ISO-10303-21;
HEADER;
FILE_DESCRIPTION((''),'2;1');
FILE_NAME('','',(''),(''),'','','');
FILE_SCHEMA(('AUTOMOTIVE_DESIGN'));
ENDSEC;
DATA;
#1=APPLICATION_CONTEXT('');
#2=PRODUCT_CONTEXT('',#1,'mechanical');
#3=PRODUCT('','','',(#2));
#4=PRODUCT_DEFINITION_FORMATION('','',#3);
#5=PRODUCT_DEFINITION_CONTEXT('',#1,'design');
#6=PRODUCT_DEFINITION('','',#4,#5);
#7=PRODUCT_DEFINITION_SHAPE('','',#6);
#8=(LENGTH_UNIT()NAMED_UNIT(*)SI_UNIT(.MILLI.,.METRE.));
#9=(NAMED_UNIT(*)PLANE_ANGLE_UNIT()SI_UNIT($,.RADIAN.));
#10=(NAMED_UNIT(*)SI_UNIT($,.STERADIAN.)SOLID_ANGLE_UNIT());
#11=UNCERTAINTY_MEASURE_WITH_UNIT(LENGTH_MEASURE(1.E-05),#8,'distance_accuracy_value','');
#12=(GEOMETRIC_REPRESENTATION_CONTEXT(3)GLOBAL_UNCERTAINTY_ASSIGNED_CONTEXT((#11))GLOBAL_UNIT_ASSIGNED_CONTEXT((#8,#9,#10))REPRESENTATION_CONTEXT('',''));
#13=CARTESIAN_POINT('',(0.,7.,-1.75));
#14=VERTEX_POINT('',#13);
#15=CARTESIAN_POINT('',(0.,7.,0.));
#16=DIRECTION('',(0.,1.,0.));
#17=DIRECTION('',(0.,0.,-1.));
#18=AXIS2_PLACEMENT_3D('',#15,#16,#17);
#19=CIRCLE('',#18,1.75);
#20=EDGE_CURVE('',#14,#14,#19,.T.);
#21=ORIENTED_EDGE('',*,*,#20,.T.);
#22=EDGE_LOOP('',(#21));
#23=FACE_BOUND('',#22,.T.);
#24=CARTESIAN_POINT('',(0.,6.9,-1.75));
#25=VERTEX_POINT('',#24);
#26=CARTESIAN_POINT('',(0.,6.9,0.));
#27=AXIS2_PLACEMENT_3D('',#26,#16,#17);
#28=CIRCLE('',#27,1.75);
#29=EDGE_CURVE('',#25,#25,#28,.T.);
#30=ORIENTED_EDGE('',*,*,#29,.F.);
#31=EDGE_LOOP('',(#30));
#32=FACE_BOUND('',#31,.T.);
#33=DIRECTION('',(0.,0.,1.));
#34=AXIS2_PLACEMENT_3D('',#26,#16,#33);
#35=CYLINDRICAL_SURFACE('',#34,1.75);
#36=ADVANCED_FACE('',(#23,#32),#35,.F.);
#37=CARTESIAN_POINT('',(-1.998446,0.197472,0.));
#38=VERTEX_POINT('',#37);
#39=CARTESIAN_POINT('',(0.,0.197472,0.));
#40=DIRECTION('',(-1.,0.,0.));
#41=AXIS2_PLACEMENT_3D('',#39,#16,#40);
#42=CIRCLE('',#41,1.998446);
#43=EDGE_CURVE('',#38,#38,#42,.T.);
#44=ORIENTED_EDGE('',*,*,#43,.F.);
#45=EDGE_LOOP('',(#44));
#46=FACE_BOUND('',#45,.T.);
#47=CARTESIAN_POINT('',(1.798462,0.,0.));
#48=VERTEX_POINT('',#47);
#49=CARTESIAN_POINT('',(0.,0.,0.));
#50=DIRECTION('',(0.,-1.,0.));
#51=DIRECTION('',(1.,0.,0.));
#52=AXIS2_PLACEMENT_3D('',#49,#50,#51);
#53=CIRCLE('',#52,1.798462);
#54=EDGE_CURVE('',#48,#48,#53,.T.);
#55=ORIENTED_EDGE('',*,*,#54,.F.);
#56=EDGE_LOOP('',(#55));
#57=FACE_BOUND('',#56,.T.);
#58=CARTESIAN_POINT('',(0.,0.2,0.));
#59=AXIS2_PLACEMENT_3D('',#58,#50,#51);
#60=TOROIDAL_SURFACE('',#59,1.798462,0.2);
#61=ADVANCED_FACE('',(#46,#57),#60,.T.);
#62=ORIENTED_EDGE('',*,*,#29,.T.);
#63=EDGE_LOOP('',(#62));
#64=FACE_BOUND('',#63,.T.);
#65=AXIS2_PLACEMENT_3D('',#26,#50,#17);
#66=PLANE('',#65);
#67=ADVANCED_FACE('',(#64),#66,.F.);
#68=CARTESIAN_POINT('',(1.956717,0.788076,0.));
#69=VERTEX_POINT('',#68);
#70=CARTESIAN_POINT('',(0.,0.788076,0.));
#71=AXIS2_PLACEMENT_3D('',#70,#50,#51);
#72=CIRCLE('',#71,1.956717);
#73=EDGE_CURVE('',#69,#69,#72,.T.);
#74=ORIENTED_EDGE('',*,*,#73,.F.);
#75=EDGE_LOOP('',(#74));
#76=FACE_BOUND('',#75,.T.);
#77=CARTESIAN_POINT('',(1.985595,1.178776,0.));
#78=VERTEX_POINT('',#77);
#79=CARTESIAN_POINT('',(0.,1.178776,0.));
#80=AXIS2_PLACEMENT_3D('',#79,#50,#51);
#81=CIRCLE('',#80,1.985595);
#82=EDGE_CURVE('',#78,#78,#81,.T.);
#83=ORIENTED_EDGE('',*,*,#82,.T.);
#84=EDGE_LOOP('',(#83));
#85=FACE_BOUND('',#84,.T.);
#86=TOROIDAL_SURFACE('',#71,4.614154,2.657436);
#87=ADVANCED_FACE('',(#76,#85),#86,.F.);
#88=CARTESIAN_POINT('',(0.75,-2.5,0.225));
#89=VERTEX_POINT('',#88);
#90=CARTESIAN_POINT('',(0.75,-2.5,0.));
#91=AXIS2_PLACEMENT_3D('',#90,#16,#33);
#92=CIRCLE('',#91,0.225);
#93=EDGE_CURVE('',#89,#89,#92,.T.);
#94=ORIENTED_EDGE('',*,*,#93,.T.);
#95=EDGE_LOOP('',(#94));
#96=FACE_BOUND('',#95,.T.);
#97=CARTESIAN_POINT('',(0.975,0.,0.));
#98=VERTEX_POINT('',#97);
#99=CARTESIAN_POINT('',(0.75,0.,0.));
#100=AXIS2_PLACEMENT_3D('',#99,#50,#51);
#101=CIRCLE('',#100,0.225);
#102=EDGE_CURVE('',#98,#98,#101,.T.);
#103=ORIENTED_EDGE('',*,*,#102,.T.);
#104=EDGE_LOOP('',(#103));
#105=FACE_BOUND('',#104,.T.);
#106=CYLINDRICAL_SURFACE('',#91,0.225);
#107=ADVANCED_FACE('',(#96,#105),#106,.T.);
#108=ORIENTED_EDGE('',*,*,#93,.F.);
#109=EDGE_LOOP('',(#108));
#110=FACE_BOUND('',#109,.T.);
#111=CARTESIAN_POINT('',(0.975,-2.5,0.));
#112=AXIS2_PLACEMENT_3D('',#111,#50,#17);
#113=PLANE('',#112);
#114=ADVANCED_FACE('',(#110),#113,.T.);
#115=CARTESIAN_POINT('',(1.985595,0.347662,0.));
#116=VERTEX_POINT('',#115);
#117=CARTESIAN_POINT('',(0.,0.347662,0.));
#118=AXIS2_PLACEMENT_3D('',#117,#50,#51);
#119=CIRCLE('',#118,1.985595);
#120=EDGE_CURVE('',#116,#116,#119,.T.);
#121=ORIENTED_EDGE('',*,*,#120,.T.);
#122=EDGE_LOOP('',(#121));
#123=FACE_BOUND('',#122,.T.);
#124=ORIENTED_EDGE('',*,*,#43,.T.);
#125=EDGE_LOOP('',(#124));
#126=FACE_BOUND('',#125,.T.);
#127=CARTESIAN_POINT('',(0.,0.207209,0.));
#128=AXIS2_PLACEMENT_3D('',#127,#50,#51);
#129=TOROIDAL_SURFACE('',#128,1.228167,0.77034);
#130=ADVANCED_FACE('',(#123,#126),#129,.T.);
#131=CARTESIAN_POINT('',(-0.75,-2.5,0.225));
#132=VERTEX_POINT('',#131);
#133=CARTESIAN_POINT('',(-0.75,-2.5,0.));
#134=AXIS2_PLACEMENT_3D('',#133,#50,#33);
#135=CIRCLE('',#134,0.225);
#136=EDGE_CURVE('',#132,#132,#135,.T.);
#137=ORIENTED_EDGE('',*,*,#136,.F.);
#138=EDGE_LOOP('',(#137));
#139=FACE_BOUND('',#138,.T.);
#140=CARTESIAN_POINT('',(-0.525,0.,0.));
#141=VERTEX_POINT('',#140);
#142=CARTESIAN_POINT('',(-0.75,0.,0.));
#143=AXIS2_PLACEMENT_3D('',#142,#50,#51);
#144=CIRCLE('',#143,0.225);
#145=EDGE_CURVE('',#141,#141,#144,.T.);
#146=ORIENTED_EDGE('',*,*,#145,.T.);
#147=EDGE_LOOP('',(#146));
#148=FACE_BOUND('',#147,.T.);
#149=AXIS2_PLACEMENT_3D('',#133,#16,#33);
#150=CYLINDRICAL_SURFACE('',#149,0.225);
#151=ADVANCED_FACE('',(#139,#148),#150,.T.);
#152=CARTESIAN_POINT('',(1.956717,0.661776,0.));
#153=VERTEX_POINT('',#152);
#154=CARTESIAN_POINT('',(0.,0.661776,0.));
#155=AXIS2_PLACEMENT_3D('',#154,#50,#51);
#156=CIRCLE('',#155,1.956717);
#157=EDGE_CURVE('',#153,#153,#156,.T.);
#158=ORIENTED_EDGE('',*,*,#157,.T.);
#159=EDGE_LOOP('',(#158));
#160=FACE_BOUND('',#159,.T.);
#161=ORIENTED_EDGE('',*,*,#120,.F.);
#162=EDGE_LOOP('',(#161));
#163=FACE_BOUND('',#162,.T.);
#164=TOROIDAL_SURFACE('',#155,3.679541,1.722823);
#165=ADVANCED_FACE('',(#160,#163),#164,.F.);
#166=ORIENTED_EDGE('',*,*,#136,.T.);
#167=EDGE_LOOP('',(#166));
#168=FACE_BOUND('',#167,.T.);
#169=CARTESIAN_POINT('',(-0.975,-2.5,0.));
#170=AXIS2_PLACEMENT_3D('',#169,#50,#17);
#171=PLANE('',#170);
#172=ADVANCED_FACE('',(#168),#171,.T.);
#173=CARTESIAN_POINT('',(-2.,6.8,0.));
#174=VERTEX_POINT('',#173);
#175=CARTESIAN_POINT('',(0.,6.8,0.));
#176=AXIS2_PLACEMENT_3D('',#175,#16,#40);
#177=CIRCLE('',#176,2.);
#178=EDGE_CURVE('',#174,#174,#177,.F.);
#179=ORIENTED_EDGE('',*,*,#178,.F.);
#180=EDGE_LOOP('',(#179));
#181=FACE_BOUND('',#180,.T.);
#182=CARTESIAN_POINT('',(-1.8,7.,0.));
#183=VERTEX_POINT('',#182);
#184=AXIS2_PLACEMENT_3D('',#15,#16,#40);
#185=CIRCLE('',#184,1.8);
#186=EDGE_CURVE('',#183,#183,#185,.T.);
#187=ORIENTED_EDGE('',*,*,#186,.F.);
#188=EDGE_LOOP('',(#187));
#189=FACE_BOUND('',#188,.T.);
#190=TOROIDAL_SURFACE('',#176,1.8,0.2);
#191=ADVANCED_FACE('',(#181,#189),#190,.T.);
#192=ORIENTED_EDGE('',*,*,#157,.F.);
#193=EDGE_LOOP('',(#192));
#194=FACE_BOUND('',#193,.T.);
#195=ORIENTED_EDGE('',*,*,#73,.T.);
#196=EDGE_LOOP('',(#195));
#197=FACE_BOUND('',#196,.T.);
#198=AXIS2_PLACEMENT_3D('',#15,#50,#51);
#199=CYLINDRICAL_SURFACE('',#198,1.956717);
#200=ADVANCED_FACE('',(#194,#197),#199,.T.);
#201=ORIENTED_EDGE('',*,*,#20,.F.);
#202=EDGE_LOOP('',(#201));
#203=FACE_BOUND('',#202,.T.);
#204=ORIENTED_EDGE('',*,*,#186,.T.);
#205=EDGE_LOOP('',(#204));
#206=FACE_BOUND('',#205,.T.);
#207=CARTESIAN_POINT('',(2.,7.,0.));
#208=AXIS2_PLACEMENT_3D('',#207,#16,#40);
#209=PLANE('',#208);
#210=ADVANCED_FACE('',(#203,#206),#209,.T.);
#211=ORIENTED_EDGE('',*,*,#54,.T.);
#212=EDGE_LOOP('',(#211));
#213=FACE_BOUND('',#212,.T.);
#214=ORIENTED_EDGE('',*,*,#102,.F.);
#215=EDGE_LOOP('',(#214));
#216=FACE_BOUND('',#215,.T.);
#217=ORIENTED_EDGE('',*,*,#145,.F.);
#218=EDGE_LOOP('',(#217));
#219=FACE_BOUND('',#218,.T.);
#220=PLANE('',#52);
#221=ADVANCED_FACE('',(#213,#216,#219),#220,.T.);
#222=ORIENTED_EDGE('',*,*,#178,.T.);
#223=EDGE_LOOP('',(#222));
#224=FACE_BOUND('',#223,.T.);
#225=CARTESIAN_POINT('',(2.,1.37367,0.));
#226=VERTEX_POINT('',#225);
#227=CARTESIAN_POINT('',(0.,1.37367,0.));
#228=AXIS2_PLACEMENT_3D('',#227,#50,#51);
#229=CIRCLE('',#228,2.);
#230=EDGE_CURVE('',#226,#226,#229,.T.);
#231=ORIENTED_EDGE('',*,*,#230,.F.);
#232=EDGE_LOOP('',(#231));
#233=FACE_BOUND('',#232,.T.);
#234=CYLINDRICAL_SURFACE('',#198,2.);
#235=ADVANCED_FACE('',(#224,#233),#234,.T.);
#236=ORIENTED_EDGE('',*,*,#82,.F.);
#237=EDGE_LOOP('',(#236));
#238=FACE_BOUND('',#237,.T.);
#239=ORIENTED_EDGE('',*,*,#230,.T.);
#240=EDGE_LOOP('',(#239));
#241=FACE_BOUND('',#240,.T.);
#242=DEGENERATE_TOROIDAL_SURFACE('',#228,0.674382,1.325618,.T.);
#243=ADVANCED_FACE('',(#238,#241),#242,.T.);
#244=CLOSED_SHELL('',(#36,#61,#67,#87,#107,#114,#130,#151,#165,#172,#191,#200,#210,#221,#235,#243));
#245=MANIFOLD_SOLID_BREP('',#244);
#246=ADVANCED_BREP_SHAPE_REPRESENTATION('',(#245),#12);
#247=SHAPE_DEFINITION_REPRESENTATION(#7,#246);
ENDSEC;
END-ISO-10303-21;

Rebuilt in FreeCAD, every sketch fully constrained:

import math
import FreeCAD as App
import Part
import Sketcher


def edges_at(feature, points):
    """Names of the edges that pass closest to the given points."""
    edges = feature.Shape.Edges
    near = lambda p: min(range(len(edges)), key=lambda i: edges[i].distToShape(Part.Vertex(*p))[0])
    return sorted({f"Edge{near(p) + 1}" for p in points})

doc = App.newDocument("Part")
params = doc.addObject("Spreadsheet::Sheet", "Params")
for row, (alias, value) in enumerate([
    ("sketch1_width", "2 mm"),
    ("sketch1_height", "7 mm"),
    ("revolution_angle", "360 deg"),
    ("sketch2_diameter", "3.5 mm"),
    ("pocket1_length", "0.1 mm"),
    ("sketch3_height", "2.5 mm"),
    ("revolution2_angle", "360 deg"),
    ("fillet_radius", "0.2 mm"),
], start=1):
    params.set(f"A{row}", alias)
    params.set(f"B{row}", "=" + value)
    params.setAlias(f"B{row}", alias)

body = doc.addObject("PartDesign::Body", "Body")

# Sketch on XY plane
sketch1 = body.newObject("Sketcher::SketchObject", "Sketch")
sketch1.AttachmentSupport = (doc.getObject("XY_Plane"), [""])
sketch1.MapMode = "FlatFace"
sketch1.addGeometry(Part.LineSegment(App.Vector(2, 7, 0), App.Vector(0, 7, 0)), False)
sketch1.addGeometry(Part.LineSegment(App.Vector(0, 7, 0), App.Vector(0, 0, 0)), False)
sketch1.addGeometry(Part.LineSegment(App.Vector(0, 0, 0), App.Vector(1.97, 0, 0)), False)
sketch1.addGeometry(Part.ArcOfCircle(Part.Circle(App.Vector(1.23, 0.21, 0), App.Vector(0, 0, 1), 0.77), math.radians(-16), math.radians(11)), False)
sketch1.addGeometry(Part.ArcOfCircle(Part.Circle(App.Vector(3.68, 0.66, 0), App.Vector(0, 0, 1), 1.72), math.radians(180), math.radians(190.51)), False)
sketch1.addGeometry(Part.LineSegment(App.Vector(1.96, 0.66, 0), App.Vector(1.96, 0.79, 0)), False)
sketch1.addGeometry(Part.ArcOfCircle(Part.Circle(App.Vector(4.61, 0.79, 0), App.Vector(0, 0, 1), 2.66), math.radians(171.55), math.radians(180)), False)
sketch1.addGeometry(Part.ArcOfCircle(Part.Circle(App.Vector(0.67, 1.37, 0), App.Vector(0, 0, 1), 1.33), math.radians(-8.45), math.radians(0)), False)
sketch1.addGeometry(Part.LineSegment(App.Vector(2, 1.37, 0), App.Vector(2, 7, 0)), False)
sketch1.addConstraint(Sketcher.Constraint("Coincident", 0, 2, 1, 1))
sketch1.addConstraint(Sketcher.Constraint("Coincident", 1, 2, 2, 1))
sketch1.addConstraint(Sketcher.Constraint("Coincident", 2, 2, 3, 1))
sketch1.addConstraint(Sketcher.Constraint("Tangent", 3, 2, 4, 2))
sketch1.addConstraint(Sketcher.Constraint("Tangent", 4, 1, 5, 1))
sketch1.addConstraint(Sketcher.Constraint("Tangent", 5, 2, 6, 2))
sketch1.addConstraint(Sketcher.Constraint("Tangent", 6, 1, 7, 1))
sketch1.addConstraint(Sketcher.Constraint("Tangent", 7, 2, 8, 1))
sketch1.addConstraint(Sketcher.Constraint("Coincident", 8, 2, 0, 1))
sketch1.addConstraint(Sketcher.Constraint("Horizontal", 0))
sketch1.addConstraint(Sketcher.Constraint("Vertical", 1))
sketch1.addConstraint(Sketcher.Constraint("Horizontal", 2))
sketch1.addConstraint(Sketcher.Constraint("Vertical", 5))
sketch1.addConstraint(Sketcher.Constraint("Vertical", 8))
sketch1.addConstraint(Sketcher.Constraint("Coincident", 1, 2, -1, 1))
sketch1.addConstraint(Sketcher.Constraint("Vertical", 3, 2, 6, 1))
sketch1.addConstraint(Sketcher.Constraint("DistanceX", 0, 2, 0, 1, 2.0))
sketch1.addConstraint(Sketcher.Constraint("DistanceY", 1, 2, 1, 1, 7.0))
sketch1.addConstraint(Sketcher.Constraint("Radius", 3, 0.77034))
sketch1.addConstraint(Sketcher.Constraint("DistanceY", 5, 1, 5, 2, 0.1263))
sketch1.addConstraint(Sketcher.Constraint("Radius", 4, 1.722823))
sketch1.addConstraint(Sketcher.Constraint("Radius", 6, 2.657436))
sketch1.addConstraint(Sketcher.Constraint("Radius", 7, 1.325618))
sketch1.addConstraint(Sketcher.Constraint("DistanceY", 4, 1, 6, 1, 0.517))
sketch1.addConstraint(Sketcher.Constraint("DistanceY", 8, 1, 8, 2, 5.62633))
sketch1.setExpression("Constraints[16]", "Params.sketch1_width")
sketch1.setExpression("Constraints[17]", "Params.sketch1_height")
revolution = body.newObject("PartDesign::Revolution", "Revolution")
revolution.Profile = sketch1
revolution.ReferenceAxis = (sketch1, ["V_Axis"])
revolution.setExpression("Angle", "Params.revolution_angle")

# Sketch on XZ plane
sketch2 = body.newObject("Sketcher::SketchObject", "Sketch001")
sketch2.AttachmentSupport = (doc.getObject("XZ_Plane"), [""])
sketch2.MapMode = "FlatFace"
sketch2.AttachmentOffset = App.Placement(App.Vector(0, 0, -7), App.Rotation())
sketch2.addGeometry(Part.Circle(App.Vector(0, 0, 0), App.Vector(0, 0, 1), 1.8), False)
sketch2.addConstraint(Sketcher.Constraint("Coincident", 0, 3, -1, 1))
sketch2.addConstraint(Sketcher.Constraint("Diameter", 0, 3.5))
sketch2.setExpression("Constraints[1]", "Params.sketch2_diameter")
pocket1 = body.newObject("PartDesign::Pocket", "Pocket")
pocket1.Profile = sketch2
pocket1.setExpression("Length", "Params.pocket1_length")
pocket1.Reversed = True

# Sketch on XY plane
sketch3 = body.newObject("Sketcher::SketchObject", "Sketch002")
sketch3.AttachmentSupport = (doc.getObject("XY_Plane"), [""])
sketch3.MapMode = "FlatFace"
sketch3.addGeometry(Part.LineSegment(App.Vector(0.97, 0, 0), App.Vector(0.97, -2.5, 0)), False)
sketch3.addGeometry(Part.LineSegment(App.Vector(0.97, -2.5, 0), App.Vector(0.75, -2.5, 0)), False)
sketch3.addGeometry(Part.LineSegment(App.Vector(0.75, -2.5, 0), App.Vector(0.75, 0, 0)), False)
sketch3.addGeometry(Part.LineSegment(App.Vector(0.75, 0, 0), App.Vector(0.97, 0, 0)), False)
sketch3.addGeometry(Part.LineSegment(App.Vector(0.75, -2.5, 0), App.Vector(0.75, 0, 0)), True)  # axis
sketch3.addConstraint(Sketcher.Constraint("Coincident", 0, 2, 1, 1))
sketch3.addConstraint(Sketcher.Constraint("Coincident", 1, 2, 2, 1))
sketch3.addConstraint(Sketcher.Constraint("Coincident", 2, 2, 3, 1))
sketch3.addConstraint(Sketcher.Constraint("Coincident", 3, 2, 0, 1))
sketch3.addConstraint(Sketcher.Constraint("Vertical", 0))
sketch3.addConstraint(Sketcher.Constraint("Horizontal", 1))
sketch3.addConstraint(Sketcher.Constraint("Vertical", 2))
sketch3.addConstraint(Sketcher.Constraint("Horizontal", 3))
sketch3.addConstraint(Sketcher.Constraint("Vertical", 4))
sketch3.addConstraint(Sketcher.Constraint("Coincident", 4, 1, 1, 2))
sketch3.addConstraint(Sketcher.Constraint("PointOnObject", 2, 2, -1))
sketch3.addConstraint(Sketcher.Constraint("PointOnObject", 4, 2, -1))
sketch3.addConstraint(Sketcher.Constraint("DistanceY", 0, 2, 0, 1, 2.5))
sketch3.addConstraint(Sketcher.Constraint("DistanceX", 1, 2, 1, 1, 0.225))
sketch3.addConstraint(Sketcher.Constraint("DistanceX", -1, 1, 1, 2, 0.75))
sketch3.setExpression("Constraints[12]", "Params.sketch3_height")
revolution2 = body.newObject("PartDesign::Revolution", "Revolution001")
revolution2.Profile = sketch3
revolution2.ReferenceAxis = (sketch3, ["Axis0"])
revolution2.setExpression("Angle", "Params.revolution2_angle")
doc.recompute()

fillet = body.newObject("PartDesign::Fillet", "Fillet")
fillet.Base = (revolution2, edges_at(revolution2, [(-2, 7, 0), (-1.97, 0, 0)]))
fillet.setExpression("Radius", "Params.fillet_radius")
doc.recompute()

mirrored = body.newObject("PartDesign::Mirrored", "Mirrored")
mirrored.Originals = [revolution2]
mirrored.MirrorPlane = (doc.getObject("YZ_Plane"), [""])
body.Tip = mirrored

doc.recompute()
